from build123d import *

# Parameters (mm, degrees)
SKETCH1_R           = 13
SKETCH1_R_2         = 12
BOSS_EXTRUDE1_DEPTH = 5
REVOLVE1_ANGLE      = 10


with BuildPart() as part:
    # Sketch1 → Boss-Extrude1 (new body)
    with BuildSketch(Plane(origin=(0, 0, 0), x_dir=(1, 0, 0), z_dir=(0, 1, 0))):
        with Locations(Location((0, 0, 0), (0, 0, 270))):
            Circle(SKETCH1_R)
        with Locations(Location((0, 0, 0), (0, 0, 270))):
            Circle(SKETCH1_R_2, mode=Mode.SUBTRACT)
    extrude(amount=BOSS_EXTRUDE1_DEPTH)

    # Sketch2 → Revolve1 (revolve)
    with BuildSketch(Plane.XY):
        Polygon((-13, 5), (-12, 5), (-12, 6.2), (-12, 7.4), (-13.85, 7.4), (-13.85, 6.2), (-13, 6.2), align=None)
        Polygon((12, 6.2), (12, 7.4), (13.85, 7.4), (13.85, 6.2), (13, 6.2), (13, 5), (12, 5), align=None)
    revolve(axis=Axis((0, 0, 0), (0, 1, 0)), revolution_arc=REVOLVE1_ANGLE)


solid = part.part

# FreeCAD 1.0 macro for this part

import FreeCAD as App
import Part
import Sketcher
from FreeCAD import Vector
Q = App.Units.Quantity


def add_polygon(sketch, points):
    """Adds a closed chain of lines whose ends are joined by coincident constraints."""
    first, n = sketch.GeometryCount, len(points)
    for a, b in zip(points, points[1:] + points[:1]):
        sketch.addGeometry(Part.LineSegment(App.Vector(*a, 0), App.Vector(*b, 0)), False)
    for i in range(n):
        sketch.addConstraint(Sketcher.Constraint("Coincident", first + i, 2, first + (i + 1) % n, 1))

doc = App.newDocument("Part")
body = doc.addObject("PartDesign::Body", "Body")

# Sketch on XZ plane
sketch1 = doc.addObject("Sketcher::SketchObject", "Sketch")
body.addObject(sketch1)
sketch1.AttachmentSupport = (doc.XZ_Plane, [""])
sketch1.MapMode = "FlatFace"
sketch1.addGeometry(Part.Circle(Vector(0, 0, 0), Vector(0, 0, 1), 13), False)
sketch1.addGeometry(Part.Circle(Vector(0, 0, 0), Vector(0, 0, 1), 12), False)
sketch1.addConstraint(Sketcher.Constraint("Coincident", 0, 3, -1, 1))
sketch1.addConstraint(Sketcher.Constraint("Coincident", 1, 3, -1, 1))
sketch1.addConstraint(Sketcher.Constraint("Diameter", 0, Q("26 mm")))
sketch1.addConstraint(Sketcher.Constraint("Diameter", 1, Q("24 mm")))
pad1 = doc.addObject("PartDesign::Pad", "Pad")
body.addObject(pad1)
pad1.Profile = sketch1
pad1.Length = 5
pad1.Reversed = True

# Sketch on XY plane
sketch2 = doc.addObject("Sketcher::SketchObject", "Sketch001")
body.addObject(sketch2)
sketch2.AttachmentSupport = (doc.XY_Plane, [""])
sketch2.MapMode = "FlatFace"
add_polygon(sketch2, [(-13, 5), (-12, 5), (-12, 7.4), (-13.8, 7.4), (-13.8, 6.2), (-13, 6.2)])  # lines 0-5
add_polygon(sketch2, [(12, 7.4), (12, 5), (13, 5), (13, 6.2), (13.8, 6.2), (13.8, 7.4)])  # lines 6-11
sketch2.addConstraint(Sketcher.Constraint("Horizontal", 0))
sketch2.addConstraint(Sketcher.Constraint("Vertical", 1))
sketch2.addConstraint(Sketcher.Constraint("Horizontal", 2))
sketch2.addConstraint(Sketcher.Constraint("Vertical", 3))
sketch2.addConstraint(Sketcher.Constraint("Horizontal", 4))
sketch2.addConstraint(Sketcher.Constraint("Vertical", 5))
sketch2.addConstraint(Sketcher.Constraint("Vertical", 6))
sketch2.addConstraint(Sketcher.Constraint("Horizontal", 7))
sketch2.addConstraint(Sketcher.Constraint("Vertical", 8))
sketch2.addConstraint(Sketcher.Constraint("Horizontal", 9))
sketch2.addConstraint(Sketcher.Constraint("Vertical", 10))
sketch2.addConstraint(Sketcher.Constraint("Horizontal", 11))
sketch2.addConstraint(Sketcher.Constraint("Symmetric", 0, 2, 6, 2, -2))
sketch2.addConstraint(Sketcher.Constraint("Symmetric", 4, 2, 8, 2, -2))
sketch2.addConstraint(Sketcher.Constraint("Symmetric", 2, 2, 10, 2, -2))
sketch2.addConstraint(Sketcher.Constraint("Equal", 3, 5))
sketch2.addConstraint(Sketcher.Constraint("DistanceX", 0, 1, 0, 2, Q("1 mm")))
sketch2.addConstraint(Sketcher.Constraint("DistanceY", 1, 1, 1, 2, Q("2.4 mm")))
sketch2.addConstraint(Sketcher.Constraint("DistanceX", 0, 2, -1, 1, Q("12 mm")))
sketch2.addConstraint(Sketcher.Constraint("DistanceY", -1, 1, 0, 2, Q("5 mm")))
sketch2.addConstraint(Sketcher.Constraint("DistanceX", 2, 2, 2, 1, Q("1.85 mm")))
revolution = doc.addObject("PartDesign::Revolution", "Revolution")
body.addObject(revolution)
revolution.Profile = sketch2
revolution.ReferenceAxis = (sketch2, ["V_Axis"])
revolution.Angle = 10

doc.recompute()
